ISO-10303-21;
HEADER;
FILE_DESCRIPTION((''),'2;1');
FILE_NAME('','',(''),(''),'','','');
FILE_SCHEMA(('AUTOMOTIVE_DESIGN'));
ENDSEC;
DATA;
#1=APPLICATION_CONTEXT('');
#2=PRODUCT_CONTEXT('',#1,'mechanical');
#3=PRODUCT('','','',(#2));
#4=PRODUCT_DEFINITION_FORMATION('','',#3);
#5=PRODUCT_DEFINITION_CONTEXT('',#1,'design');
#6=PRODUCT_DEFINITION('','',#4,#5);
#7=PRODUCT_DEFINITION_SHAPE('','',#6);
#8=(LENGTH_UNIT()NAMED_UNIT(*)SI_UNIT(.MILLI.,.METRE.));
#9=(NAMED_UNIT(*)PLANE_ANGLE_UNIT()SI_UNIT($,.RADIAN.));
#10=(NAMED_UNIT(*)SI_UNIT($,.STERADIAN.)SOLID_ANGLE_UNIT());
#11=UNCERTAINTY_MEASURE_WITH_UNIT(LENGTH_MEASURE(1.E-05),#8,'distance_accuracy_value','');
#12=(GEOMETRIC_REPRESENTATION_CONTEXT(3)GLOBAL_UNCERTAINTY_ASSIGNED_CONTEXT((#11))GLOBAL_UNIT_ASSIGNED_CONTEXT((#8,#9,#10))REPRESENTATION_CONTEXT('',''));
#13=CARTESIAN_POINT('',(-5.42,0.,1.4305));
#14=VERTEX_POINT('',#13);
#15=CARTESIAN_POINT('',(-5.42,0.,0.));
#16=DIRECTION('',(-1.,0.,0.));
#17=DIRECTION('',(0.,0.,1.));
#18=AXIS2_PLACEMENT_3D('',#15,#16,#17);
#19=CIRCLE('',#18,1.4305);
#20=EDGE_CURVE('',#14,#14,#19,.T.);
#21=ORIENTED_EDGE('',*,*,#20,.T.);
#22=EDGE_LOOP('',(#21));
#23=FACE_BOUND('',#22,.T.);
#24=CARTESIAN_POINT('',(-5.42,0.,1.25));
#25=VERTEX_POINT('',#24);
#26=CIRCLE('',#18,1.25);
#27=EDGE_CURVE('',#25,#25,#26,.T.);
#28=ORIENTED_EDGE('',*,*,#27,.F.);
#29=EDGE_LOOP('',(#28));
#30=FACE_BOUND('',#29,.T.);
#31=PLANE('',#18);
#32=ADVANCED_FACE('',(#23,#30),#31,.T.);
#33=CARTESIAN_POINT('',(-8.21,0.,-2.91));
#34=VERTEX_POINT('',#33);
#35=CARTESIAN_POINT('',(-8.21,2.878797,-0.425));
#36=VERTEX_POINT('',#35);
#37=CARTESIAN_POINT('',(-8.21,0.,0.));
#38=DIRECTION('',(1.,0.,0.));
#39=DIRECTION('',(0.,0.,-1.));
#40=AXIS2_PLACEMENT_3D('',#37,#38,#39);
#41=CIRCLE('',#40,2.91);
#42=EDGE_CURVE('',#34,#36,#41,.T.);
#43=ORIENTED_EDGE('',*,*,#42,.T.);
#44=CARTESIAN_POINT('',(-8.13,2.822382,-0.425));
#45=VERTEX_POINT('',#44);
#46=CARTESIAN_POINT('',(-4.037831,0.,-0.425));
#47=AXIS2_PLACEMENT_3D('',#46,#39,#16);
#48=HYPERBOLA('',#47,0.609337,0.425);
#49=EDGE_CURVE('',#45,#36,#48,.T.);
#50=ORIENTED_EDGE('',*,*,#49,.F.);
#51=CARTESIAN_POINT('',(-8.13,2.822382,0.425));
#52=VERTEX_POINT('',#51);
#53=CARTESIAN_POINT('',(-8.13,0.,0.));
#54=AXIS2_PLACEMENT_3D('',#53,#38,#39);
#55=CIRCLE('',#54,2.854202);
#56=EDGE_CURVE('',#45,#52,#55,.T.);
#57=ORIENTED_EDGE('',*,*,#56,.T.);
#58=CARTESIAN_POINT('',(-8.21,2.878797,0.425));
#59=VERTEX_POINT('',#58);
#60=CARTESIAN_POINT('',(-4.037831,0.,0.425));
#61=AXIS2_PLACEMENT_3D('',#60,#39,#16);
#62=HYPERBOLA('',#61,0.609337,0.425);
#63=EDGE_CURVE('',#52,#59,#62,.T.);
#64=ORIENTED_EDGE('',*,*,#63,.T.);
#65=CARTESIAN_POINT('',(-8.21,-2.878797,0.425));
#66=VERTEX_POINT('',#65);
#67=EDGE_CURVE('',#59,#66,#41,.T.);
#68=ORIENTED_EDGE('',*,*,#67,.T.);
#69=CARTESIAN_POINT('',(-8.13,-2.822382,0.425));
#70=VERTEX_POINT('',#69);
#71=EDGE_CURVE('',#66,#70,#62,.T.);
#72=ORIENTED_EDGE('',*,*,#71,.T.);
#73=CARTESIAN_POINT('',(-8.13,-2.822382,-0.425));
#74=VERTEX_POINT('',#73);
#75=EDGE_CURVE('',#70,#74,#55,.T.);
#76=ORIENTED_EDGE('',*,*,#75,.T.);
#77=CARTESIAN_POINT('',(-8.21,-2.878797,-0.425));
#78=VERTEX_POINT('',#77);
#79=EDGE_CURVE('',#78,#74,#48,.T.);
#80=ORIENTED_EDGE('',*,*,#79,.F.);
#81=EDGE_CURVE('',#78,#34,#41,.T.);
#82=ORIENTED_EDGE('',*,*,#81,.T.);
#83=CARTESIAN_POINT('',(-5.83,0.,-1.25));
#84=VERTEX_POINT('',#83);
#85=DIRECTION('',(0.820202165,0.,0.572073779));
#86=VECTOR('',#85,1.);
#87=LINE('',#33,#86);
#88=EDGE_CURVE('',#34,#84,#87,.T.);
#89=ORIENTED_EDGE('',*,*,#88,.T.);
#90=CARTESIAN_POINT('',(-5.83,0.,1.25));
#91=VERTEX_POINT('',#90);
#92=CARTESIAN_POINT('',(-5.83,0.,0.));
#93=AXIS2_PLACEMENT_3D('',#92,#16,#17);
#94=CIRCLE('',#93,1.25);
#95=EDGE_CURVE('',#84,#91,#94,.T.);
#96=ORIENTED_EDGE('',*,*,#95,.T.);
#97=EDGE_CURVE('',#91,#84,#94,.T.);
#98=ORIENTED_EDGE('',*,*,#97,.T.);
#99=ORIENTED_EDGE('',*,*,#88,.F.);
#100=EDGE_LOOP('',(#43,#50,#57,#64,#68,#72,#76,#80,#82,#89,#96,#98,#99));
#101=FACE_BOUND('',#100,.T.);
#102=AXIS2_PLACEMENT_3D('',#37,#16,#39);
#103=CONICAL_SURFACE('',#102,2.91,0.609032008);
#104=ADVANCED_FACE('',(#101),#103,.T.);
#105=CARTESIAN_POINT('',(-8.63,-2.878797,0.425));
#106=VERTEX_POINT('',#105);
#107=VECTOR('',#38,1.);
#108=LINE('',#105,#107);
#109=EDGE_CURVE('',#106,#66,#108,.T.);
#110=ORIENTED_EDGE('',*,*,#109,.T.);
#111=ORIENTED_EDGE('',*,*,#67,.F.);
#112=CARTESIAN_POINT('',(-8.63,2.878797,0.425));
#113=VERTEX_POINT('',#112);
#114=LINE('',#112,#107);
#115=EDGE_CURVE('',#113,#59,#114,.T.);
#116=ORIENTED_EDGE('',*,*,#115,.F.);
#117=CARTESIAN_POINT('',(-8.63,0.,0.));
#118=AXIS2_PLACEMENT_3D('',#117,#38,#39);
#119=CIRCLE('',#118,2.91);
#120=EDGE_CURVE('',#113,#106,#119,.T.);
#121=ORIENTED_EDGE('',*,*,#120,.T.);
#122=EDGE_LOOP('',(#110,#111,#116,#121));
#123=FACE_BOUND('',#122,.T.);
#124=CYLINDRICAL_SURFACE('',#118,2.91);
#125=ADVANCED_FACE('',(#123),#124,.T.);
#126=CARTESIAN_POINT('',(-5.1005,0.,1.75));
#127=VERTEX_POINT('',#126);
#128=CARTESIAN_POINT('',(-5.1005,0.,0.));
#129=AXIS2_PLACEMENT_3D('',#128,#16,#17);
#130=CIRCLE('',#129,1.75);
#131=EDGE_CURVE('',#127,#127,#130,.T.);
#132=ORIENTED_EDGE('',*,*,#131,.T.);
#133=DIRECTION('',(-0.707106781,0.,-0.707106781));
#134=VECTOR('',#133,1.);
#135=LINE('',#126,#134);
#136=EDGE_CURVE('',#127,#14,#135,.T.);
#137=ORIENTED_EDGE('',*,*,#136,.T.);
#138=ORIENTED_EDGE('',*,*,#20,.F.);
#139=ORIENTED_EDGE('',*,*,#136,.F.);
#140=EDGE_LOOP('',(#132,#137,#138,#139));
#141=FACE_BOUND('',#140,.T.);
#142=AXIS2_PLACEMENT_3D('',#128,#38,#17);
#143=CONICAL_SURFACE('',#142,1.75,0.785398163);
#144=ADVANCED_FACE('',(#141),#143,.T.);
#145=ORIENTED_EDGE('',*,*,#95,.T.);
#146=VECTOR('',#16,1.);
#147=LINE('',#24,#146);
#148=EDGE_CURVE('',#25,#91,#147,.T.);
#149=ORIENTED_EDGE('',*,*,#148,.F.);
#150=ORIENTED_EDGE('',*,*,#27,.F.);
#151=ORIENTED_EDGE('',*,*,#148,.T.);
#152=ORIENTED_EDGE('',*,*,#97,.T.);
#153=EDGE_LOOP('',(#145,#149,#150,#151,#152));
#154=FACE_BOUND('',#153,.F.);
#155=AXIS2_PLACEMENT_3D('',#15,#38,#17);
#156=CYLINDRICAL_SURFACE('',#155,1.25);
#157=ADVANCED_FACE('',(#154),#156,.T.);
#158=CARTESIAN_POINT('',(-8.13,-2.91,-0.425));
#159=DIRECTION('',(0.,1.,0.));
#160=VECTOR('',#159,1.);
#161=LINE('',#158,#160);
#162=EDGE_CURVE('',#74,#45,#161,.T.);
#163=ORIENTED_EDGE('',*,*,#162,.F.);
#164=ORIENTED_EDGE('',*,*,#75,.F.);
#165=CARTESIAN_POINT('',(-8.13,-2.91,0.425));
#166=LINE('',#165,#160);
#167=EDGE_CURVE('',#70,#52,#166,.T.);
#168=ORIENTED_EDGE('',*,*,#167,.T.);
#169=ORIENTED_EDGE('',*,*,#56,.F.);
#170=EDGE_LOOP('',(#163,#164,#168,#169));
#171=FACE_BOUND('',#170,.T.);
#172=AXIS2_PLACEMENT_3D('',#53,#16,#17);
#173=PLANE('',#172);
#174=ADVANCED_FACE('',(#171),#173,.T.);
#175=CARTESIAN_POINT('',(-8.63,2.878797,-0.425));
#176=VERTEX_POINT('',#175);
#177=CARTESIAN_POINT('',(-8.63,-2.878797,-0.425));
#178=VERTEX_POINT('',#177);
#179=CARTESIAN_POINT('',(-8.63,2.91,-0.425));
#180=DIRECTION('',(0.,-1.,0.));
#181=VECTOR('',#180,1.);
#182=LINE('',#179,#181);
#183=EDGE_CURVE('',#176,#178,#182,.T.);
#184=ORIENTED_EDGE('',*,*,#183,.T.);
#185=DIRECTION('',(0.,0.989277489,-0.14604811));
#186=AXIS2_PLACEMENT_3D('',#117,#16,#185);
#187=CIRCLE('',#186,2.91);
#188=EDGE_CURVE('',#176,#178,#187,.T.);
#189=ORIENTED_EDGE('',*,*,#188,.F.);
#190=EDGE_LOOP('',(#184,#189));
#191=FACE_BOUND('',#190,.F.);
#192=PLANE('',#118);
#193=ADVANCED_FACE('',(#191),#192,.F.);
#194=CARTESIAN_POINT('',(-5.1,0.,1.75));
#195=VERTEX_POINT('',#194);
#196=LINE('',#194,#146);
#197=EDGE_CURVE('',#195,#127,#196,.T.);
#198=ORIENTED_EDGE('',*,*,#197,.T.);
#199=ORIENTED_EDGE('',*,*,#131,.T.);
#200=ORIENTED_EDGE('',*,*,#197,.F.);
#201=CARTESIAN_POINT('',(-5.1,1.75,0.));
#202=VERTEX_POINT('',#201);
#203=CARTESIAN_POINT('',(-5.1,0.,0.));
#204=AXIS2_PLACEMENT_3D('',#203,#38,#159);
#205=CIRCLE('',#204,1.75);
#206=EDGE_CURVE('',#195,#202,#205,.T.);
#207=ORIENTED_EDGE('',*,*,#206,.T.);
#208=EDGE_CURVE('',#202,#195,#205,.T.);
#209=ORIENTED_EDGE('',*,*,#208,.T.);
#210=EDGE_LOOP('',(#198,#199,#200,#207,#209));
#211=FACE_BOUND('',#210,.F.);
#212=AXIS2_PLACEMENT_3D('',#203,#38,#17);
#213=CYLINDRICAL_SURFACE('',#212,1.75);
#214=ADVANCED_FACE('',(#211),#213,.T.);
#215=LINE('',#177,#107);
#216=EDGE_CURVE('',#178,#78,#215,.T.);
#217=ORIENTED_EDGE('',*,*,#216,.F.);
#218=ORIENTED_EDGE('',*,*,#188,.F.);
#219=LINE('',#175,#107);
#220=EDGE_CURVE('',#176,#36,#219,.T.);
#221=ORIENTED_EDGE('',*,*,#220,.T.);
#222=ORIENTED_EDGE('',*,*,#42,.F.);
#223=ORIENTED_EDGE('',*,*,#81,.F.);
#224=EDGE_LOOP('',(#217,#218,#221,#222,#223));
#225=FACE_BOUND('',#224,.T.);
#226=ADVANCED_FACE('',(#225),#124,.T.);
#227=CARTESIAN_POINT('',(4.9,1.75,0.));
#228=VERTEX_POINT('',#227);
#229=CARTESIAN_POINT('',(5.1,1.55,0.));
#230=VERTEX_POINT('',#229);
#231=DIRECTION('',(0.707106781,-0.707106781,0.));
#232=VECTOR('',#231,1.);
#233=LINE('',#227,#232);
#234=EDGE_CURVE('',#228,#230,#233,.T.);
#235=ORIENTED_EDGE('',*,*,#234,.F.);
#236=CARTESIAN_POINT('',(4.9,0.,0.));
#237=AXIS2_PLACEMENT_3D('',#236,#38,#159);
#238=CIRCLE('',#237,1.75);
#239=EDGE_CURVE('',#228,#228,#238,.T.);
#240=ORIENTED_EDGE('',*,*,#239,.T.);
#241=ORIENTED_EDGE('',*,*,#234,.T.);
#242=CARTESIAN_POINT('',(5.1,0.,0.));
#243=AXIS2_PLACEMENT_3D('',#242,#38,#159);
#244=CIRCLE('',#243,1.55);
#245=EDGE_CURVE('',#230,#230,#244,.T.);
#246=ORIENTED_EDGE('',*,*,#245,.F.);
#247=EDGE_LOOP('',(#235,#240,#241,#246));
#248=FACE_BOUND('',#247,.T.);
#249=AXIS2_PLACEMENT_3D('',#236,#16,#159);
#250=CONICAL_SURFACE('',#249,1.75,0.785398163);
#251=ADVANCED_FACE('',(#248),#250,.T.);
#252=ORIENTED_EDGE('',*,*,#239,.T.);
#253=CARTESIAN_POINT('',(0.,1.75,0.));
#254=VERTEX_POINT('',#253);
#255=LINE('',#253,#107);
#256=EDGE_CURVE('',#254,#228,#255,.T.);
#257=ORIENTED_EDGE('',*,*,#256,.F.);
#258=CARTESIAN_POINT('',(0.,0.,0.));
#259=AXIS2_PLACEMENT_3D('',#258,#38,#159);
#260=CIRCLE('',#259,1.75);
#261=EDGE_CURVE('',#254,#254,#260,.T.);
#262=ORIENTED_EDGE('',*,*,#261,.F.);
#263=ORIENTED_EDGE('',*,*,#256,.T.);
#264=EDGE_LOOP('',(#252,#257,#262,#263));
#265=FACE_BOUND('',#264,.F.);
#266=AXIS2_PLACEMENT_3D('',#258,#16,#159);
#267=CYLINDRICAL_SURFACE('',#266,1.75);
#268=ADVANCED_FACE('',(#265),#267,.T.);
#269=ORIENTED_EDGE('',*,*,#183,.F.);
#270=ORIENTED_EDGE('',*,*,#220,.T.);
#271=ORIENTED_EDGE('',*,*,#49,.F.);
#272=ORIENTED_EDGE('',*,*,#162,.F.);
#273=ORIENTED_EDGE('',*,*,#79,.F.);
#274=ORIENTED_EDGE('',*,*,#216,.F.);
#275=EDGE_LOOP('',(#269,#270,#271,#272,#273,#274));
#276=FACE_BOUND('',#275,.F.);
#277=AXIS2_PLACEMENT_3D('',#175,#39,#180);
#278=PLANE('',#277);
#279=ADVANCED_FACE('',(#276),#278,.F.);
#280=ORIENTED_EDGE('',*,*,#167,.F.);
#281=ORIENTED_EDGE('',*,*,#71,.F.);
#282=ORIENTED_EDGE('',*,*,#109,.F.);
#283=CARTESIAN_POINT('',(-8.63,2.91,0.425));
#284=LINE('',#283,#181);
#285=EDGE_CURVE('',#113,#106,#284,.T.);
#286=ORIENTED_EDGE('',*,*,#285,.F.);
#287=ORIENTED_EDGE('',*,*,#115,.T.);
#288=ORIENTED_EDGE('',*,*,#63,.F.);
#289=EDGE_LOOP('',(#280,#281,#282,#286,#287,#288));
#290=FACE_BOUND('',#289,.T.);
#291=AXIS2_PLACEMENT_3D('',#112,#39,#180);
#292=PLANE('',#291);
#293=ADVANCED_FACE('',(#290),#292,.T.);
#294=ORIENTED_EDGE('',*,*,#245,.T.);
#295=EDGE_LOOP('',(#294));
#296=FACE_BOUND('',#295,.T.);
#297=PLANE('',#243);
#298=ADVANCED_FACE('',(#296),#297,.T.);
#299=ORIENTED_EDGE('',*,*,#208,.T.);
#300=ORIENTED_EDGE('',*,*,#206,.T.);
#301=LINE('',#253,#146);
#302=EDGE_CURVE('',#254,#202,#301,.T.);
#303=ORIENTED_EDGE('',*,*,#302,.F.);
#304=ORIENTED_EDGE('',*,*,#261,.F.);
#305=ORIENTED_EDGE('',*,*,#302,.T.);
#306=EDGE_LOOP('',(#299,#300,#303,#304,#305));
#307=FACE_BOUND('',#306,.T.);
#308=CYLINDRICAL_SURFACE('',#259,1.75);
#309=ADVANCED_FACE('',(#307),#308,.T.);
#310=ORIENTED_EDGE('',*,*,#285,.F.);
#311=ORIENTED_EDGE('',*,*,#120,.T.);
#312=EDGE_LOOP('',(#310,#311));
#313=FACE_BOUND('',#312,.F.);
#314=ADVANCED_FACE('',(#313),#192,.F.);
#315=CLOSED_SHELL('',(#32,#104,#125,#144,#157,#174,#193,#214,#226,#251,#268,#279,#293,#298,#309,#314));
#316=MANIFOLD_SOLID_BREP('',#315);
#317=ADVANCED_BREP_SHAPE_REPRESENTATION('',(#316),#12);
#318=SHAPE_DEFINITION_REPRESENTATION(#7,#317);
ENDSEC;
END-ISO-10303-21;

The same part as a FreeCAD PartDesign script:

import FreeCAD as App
import Part
import Sketcher
from FreeCAD import Vector


def edges_at(feature, points):
    """Names of the edges that pass closest to the given points."""
    edges = feature.Shape.Edges
    near = lambda p: min(range(len(edges)), key=lambda i: edges[i].distToShape(Part.Vertex(*p))[0])
    return sorted({f"Edge{near(p) + 1}" for p in points})


def add_polygon(sketch, points):
    """Adds a closed chain of lines whose ends are joined by coincident constraints."""
    first, n = sketch.GeometryCount, len(points)
    for a, b in zip(points, points[1:] + points[:1]):
        sketch.addGeometry(Part.LineSegment(App.Vector(*a, 0), App.Vector(*b, 0)), False)
    for i in range(n):
        sketch.addConstraint(Sketcher.Constraint("Coincident", first + i, 2, first + (i + 1) % n, 1))

doc = App.newDocument("Part")
body = doc.addObject("PartDesign::Body", "Body")

# Sketch on YZ plane
sketch1 = body.newObject("Sketcher::SketchObject", "Sketch")
sketch1.AttachmentSupport = (doc.getObject("YZ_Plane"), [""])
sketch1.MapMode = "FlatFace"
sketch1.addGeometry(Part.Circle(Vector(0, 0, 0), Vector(0, 0, 1), 1.75), False)
sketch1.addConstraint([
    Sketcher.Constraint("Coincident", 0, 3, -1, 1),
    Sketcher.Constraint("Diameter", 0, 3.5),
])
pad1 = body.newObject("PartDesign::Pad", "Pad")
pad1.Profile = sketch1
pad1.Length = 10.2
pad1.Midplane = True
doc.recompute()

chamfer = body.newObject("PartDesign::Chamfer", "Chamfer")
chamfer.Base = (pad1, edges_at(pad1, [(5.1, -1.75, 0)]))
chamfer.Size = 0.2

# Sketch on YZ plane
sketch2 = body.newObject("Sketcher::SketchObject", "Sketch001")
sketch2.AttachmentSupport = (doc.getObject("YZ_Plane"), [""])
sketch2.MapMode = "FlatFace"
sketch2.AttachmentOffset = App.Placement(Vector(0, 0, -5.1), App.Rotation())
sketch2.addGeometry(Part.Circle(Vector(0, 0, 0), Vector(0, 0, 1), 1.75), False)
sketch2.addConstraint([
    Sketcher.Constraint("Coincident", 0, 3, -1, 1),
    Sketcher.Constraint("Diameter", 0, 3.5),
])
pad2 = body.newObject("PartDesign::Pad", "Pad001")
pad2.Profile = sketch2
pad2.Length = 0.32
pad2.Reversed = True
doc.recompute()

chamfer2 = body.newObject("PartDesign::Chamfer", "Chamfer001")
chamfer2.Base = (pad2, edges_at(pad2, [(-5.42, 0, -1.75)]))
chamfer2.Size = 0.32

# Sketch on YZ plane
sketch3 = body.newObject("Sketcher::SketchObject", "Sketch002")
sketch3.AttachmentSupport = (doc.getObject("YZ_Plane"), [""])
sketch3.MapMode = "FlatFace"
sketch3.AttachmentOffset = App.Placement(Vector(0, 0, -5.42), App.Rotation())
sketch3.addGeometry(Part.Circle(Vector(0, 0, 0), Vector(0, 0, 1), 1.25), False)
sketch3.addConstraint([
    Sketcher.Constraint("Coincident", 0, 3, -1, 1),
    Sketcher.Constraint("Diameter", 0, 2.5),
])
pad3 = body.newObject("PartDesign::Pad", "Pad002")
pad3.Profile = sketch3
pad3.Length = 0.41
pad3.Reversed = True

# Sketch on XZ plane
sketch4 = body.newObject("Sketcher::SketchObject", "Sketch003")
sketch4.AttachmentSupport = (doc.getObject("XZ_Plane"), [""])
sketch4.MapMode = "FlatFace"
add_polygon(sketch4, [(-8.63, 0), (-5.83, 0), (-5.83, -1.25), (-8.21, -2.91), (-8.63, -2.91)])  # lines 0-4
sketch4.addConstraint([
    Sketcher.Constraint("Horizontal", 0),
    Sketcher.Constraint("Vertical", 1),
    Sketcher.Constraint("Horizontal", 3),
    Sketcher.Constraint("Vertical", 4),
    Sketcher.Constraint("PointOnObject", 0, 2, -1),
    Sketcher.Constraint("DistanceX", 3, 2, 3, 1, 0.42),
    Sketcher.Constraint("DistanceX", 0, 1, 0, 2, 2.8),
    Sketcher.Constraint("DistanceY", 1, 2, 1, 1, 1.25),
    Sketcher.Constraint("DistanceY", 4, 1, 4, 2, 2.91),
    Sketcher.Constraint("DistanceX", 0, 2, -1, 1, 5.83),
])
revolution = body.newObject("PartDesign::Revolution", "Revolution")
revolution.Profile = sketch4
revolution.ReferenceAxis = (sketch4, ["H_Axis"])
revolution.Angle = 360

# Sketch on YZ plane
sketch5 = body.newObject("Sketcher::SketchObject", "Sketch004")
sketch5.AttachmentSupport = (doc.getObject("YZ_Plane"), [""])
sketch5.MapMode = "FlatFace"
sketch5.AttachmentOffset = App.Placement(Vector(0, 0, -8.63), App.Rotation())
add_polygon(sketch5, [(2.91, 0.425), (2.91, -0.425), (-2.91, -0.425), (-2.91, 0.425)])  # lines 0-3
sketch5.addConstraint([
    Sketcher.Constraint("Vertical", 0),
    Sketcher.Constraint("Horizontal", 1),
    Sketcher.Constraint("Vertical", 2),
    Sketcher.Constraint("Horizontal", 3),
    Sketcher.Constraint("Symmetric", 0, 2, 2, 2, -1, 1),
    Sketcher.Constraint("DistanceX", 1, 2, 1, 1, 5.82),
    Sketcher.Constraint("DistanceY", 0, 2, 0, 1, 0.85),
])
pocket1 = body.newObject("PartDesign::Pocket", "Pocket")
pocket1.Profile = sketch5
pocket1.Length = 0.5
pocket1.Reversed = True

doc.recompute()
